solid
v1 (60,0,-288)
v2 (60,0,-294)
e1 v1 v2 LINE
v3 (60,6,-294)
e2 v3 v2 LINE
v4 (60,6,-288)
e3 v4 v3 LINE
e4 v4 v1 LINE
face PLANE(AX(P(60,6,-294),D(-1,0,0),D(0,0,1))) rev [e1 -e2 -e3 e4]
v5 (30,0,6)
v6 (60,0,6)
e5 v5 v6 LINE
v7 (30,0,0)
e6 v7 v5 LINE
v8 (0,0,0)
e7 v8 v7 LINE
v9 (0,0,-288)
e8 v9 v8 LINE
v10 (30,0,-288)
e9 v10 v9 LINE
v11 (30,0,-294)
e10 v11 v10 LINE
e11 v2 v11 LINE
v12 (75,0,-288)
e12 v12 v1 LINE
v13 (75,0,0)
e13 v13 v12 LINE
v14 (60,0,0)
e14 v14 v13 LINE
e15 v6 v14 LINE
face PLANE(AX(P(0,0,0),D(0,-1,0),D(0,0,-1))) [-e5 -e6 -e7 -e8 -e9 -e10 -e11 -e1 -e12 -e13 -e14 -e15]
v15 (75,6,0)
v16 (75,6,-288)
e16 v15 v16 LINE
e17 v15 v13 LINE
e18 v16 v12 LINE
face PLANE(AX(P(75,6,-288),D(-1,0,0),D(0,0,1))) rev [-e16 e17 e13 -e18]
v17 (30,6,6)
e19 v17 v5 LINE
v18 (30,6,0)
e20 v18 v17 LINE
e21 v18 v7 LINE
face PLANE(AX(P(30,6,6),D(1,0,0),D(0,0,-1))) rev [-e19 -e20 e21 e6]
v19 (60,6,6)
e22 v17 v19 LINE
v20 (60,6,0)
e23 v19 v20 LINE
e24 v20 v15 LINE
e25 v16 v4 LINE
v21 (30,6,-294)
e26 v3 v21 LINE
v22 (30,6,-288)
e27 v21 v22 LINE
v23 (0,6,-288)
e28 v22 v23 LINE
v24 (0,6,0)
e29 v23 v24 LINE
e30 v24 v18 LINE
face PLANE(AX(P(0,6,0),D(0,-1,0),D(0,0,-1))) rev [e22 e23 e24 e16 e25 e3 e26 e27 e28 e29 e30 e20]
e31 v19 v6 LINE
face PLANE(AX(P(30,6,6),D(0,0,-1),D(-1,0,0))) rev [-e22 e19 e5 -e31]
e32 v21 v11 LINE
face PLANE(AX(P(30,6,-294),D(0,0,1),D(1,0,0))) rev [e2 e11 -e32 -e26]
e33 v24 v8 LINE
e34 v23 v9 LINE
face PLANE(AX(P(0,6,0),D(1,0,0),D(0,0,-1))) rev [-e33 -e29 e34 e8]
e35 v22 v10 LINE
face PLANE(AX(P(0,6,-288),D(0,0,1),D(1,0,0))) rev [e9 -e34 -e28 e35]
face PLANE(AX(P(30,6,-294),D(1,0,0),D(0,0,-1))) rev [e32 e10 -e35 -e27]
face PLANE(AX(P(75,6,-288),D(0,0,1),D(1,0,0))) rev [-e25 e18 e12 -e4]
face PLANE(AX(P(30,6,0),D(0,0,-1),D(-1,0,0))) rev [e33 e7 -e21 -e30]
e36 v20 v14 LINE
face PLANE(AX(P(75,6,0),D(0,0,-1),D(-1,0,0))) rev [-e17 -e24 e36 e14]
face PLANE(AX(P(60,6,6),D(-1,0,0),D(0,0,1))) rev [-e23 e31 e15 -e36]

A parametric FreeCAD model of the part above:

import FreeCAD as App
import Part
import Sketcher
Q = App.Units.Quantity


def add_polygon(sketch, points):
    """Adds a closed chain of lines whose ends are joined by coincident constraints."""
    first, n = sketch.GeometryCount, len(points)
    for a, b in zip(points, points[1:] + points[:1]):
        sketch.addGeometry(Part.LineSegment(App.Vector(*a, 0), App.Vector(*b, 0)), False)
    for i in range(n):
        sketch.addConstraint(Sketcher.Constraint("Coincident", first + i, 2, first + (i + 1) % n, 1))

doc = App.newDocument("Part")
body = doc.addObject("PartDesign::Body", "Body")

# Sketch on XZ plane
sketch1 = body.newObject("Sketcher::SketchObject", "Sketch")
sketch1.AttachmentSupport = (doc.getObject("XZ_Plane"), [""])
sketch1.MapMode = "FlatFace"
add_polygon(sketch1, [(0, -288), (0, 0), (30, 0), (30, 6), (60, 6), (60, 0), (75, 0), (75, -288), (60, -288), (60, -294), (30, -294), (30, -288)])  # lines 0-11
sketch1.addConstraint([
    Sketcher.Constraint("Vertical", 0),
    Sketcher.Constraint("Horizontal", 1),
    Sketcher.Constraint("Vertical", 2),
    Sketcher.Constraint("Horizontal", 3),
    Sketcher.Constraint("Vertical", 4),
    Sketcher.Constraint("Horizontal", 5),
    Sketcher.Constraint("Vertical", 6),
    Sketcher.Constraint("Horizontal", 7),
    Sketcher.Constraint("Vertical", 8),
    Sketcher.Constraint("Horizontal", 9),
    Sketcher.Constraint("Vertical", 10),
    Sketcher.Constraint("Horizontal", 11),
    Sketcher.Constraint("Coincident", 0, 2, -1, 1),
    Sketcher.Constraint("PointOnObject", 4, 2, -1),
    Sketcher.Constraint("Horizontal", 7, 2, 10, 2),
    Sketcher.Constraint("Vertical", 4, 2, 7, 2),
    Sketcher.Constraint("Vertical", 2, 2, 9, 2),
    Sketcher.Constraint("Equal", 1, 3),
    Sketcher.Constraint("Equal", 4, 8),
    Sketcher.Constraint("DistanceX", 1, 1, 1, 2, Q("30 mm")),
    Sketcher.Constraint("DistanceX", 5, 1, 5, 2, Q("15 mm")),
    Sketcher.Constraint("DistanceY", 0, 1, 0, 2, Q("288 mm")),
    Sketcher.Constraint("DistanceY", 2, 1, 2, 2, Q("6 mm")),
])
pad1 = body.newObject("PartDesign::Pad", "Pad")
pad1.Profile = sketch1
pad1.Length = 6
pad1.Reversed = True

doc.recompute()
